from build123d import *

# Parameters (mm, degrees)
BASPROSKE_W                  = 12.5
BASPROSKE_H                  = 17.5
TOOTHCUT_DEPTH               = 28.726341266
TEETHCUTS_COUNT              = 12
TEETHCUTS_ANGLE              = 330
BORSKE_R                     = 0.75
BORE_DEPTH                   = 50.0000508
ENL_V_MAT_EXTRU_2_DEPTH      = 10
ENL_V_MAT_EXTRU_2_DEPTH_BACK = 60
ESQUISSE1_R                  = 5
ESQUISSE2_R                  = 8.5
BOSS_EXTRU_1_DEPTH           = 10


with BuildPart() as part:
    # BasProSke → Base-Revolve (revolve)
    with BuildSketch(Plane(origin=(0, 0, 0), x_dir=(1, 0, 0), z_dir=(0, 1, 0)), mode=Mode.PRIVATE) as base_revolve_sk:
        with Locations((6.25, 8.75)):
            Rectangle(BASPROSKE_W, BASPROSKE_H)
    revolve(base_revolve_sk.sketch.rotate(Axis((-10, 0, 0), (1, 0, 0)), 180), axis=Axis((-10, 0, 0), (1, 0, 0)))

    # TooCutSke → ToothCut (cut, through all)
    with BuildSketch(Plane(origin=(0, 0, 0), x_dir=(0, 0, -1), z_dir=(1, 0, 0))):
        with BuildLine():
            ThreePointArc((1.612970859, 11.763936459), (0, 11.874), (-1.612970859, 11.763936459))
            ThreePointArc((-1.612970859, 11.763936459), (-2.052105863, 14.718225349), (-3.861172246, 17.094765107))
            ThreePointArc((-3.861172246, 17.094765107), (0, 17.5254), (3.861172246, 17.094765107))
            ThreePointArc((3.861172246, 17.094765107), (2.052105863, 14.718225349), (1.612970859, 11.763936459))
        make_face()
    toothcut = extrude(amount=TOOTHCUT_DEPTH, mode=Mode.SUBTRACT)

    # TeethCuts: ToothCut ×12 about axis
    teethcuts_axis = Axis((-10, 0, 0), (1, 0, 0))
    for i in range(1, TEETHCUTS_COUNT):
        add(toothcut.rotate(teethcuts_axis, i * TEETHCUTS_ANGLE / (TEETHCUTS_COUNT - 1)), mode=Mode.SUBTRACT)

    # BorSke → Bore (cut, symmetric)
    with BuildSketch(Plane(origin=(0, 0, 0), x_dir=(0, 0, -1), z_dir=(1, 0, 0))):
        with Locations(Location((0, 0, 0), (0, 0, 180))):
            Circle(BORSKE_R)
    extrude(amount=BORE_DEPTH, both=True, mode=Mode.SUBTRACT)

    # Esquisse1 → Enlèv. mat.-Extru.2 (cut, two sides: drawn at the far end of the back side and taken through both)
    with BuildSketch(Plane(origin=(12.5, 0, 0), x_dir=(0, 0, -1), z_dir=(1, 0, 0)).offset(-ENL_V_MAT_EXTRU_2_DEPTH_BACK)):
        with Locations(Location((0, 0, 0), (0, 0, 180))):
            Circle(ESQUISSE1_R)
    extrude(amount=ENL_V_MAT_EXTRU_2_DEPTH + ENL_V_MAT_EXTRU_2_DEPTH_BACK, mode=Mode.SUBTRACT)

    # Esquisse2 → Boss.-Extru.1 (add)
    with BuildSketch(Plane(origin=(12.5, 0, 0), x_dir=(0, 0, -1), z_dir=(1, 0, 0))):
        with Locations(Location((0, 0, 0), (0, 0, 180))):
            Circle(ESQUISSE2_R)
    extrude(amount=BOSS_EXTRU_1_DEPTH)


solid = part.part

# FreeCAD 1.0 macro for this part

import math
import FreeCAD as App
import Part
import Sketcher

doc = App.newDocument("Part")
body = doc.addObject("PartDesign::Body", "Body")

# Sketch on XZ plane
sketch1 = body.newObject("Sketcher::SketchObject", "Sketch")
sketch1.AttachmentSupport = (doc.getObject("XZ_Plane"), [""])
sketch1.MapMode = "FlatFace"
sketch1.addGeometry(Part.LineSegment(App.Vector(0, -18, 0), App.Vector(0, 0, 0)), False)
sketch1.addGeometry(Part.LineSegment(App.Vector(0, 0, 0), App.Vector(12, 0, 0)), False)
sketch1.addGeometry(Part.LineSegment(App.Vector(12, 0, 0), App.Vector(12, -18, 0)), False)
sketch1.addGeometry(Part.LineSegment(App.Vector(12, -18, 0), App.Vector(0, -18, 0)), False)
sketch1.addConstraint(Sketcher.Constraint("Coincident", 0, 2, 1, 1))
sketch1.addConstraint(Sketcher.Constraint("Coincident", 1, 2, 2, 1))
sketch1.addConstraint(Sketcher.Constraint("Coincident", 2, 2, 3, 1))
sketch1.addConstraint(Sketcher.Constraint("Coincident", 3, 2, 0, 1))
sketch1.addConstraint(Sketcher.Constraint("Vertical", 0))
sketch1.addConstraint(Sketcher.Constraint("Horizontal", 1))
sketch1.addConstraint(Sketcher.Constraint("Vertical", 2))
sketch1.addConstraint(Sketcher.Constraint("Horizontal", 3))
sketch1.addConstraint(Sketcher.Constraint("Coincident", 0, 2, -1, 1))
sketch1.addConstraint(Sketcher.Constraint("DistanceX", 1, 1, 1, 2, 12.5))
sketch1.addConstraint(Sketcher.Constraint("DistanceY", 0, 1, 0, 2, 17.5))
revolution = body.newObject("PartDesign::Revolution", "Revolution")
revolution.Profile = sketch1
revolution.ReferenceAxis = (sketch1, ["H_Axis"])
revolution.Angle = 360

# Sketch on YZ plane
sketch2 = body.newObject("Sketcher::SketchObject", "Sketch001")
sketch2.AttachmentSupport = (doc.getObject("YZ_Plane"), [""])
sketch2.MapMode = "FlatFace"
sketch2.addGeometry(Part.ArcOfCircle(Part.Circle(App.Vector(0, 0, 0), App.Vector(0, 0, 1), 11.9), math.radians(-7.81), math.radians(7.81)), False)
sketch2.addGeometry(Part.ArcOfCircle(Part.Circle(App.Vector(12.4, -7.6, 0), App.Vector(0, 0, 1), 6), math.radians(38), math.radians(96)), False)
sketch2.addGeometry(Part.ArcOfCircle(Part.Circle(App.Vector(0, 0, 0), App.Vector(0, 0, 1), 17.5), math.radians(-13), math.radians(13)), False)
sketch2.addGeometry(Part.ArcOfCircle(Part.Circle(App.Vector(12.4, 7.6, 0), App.Vector(0, 0, 1), 6), math.radians(-96), math.radians(-38)), False)
sketch2.addConstraint(Sketcher.Constraint("Coincident", 0, 1, 1, 2))
sketch2.addConstraint(Sketcher.Constraint("Coincident", 1, 1, 2, 1))
sketch2.addConstraint(Sketcher.Constraint("Coincident", 2, 2, 3, 2))
sketch2.addConstraint(Sketcher.Constraint("Coincident", 3, 1, 0, 2))
sketch2.addConstraint(Sketcher.Constraint("Coincident", 0, 3, -1, 1))
sketch2.addConstraint(Sketcher.Constraint("Coincident", 2, 3, -1, 1))
sketch2.addConstraint(Sketcher.Constraint("Equal", 1, 3))
sketch2.addConstraint(Sketcher.Constraint("Symmetric", 1, 3, 3, 3, -1))
sketch2.addConstraint(Sketcher.Constraint("Radius", 1, 6.0))
sketch2.addConstraint(Sketcher.Constraint("Radius", 0, 11.874))
sketch2.addConstraint(Sketcher.Constraint("Radius", 2, 17.5254))
sketch2.addConstraint(Sketcher.Constraint("DistanceY", 1, 1, 0, 1, 2.248201))
sketch2.addConstraint(Sketcher.Constraint("DistanceY", 0, 1, -1, 1, 1.612971))
pocket1 = body.newObject("PartDesign::Pocket", "Pocket")
pocket1.Profile = sketch2
pocket1.Type = "ThroughAll"
pocket1.Reversed = True
doc.recompute()

polarpattern = body.newObject("PartDesign::PolarPattern", "PolarPattern")
polarpattern.Originals = [pocket1]
polarpattern.Axis = (doc.getObject("X_Axis"), [""])
polarpattern.Angle = 360
polarpattern.Occurrences = 12
body.Tip = polarpattern

# Sketch on YZ plane
sketch3 = body.newObject("Sketcher::SketchObject", "Sketch002")
sketch3.AttachmentSupport = (doc.getObject("YZ_Plane"), [""])
sketch3.MapMode = "FlatFace"
sketch3.addGeometry(Part.Circle(App.Vector(0, 0, 0), App.Vector(0, 0, 1), 0.8), False)
sketch3.addConstraint(Sketcher.Constraint("Coincident", 0, 3, -1, 1))
sketch3.addConstraint(Sketcher.Constraint("Diameter", 0, 1.5))
pocket2 = body.newObject("PartDesign::Pocket", "Pocket001")
pocket2.Profile = sketch3
pocket2.Length = 100.000102
pocket2.Midplane = True

# Sketch on YZ plane
sketch4 = body.newObject("Sketcher::SketchObject", "Sketch003")
sketch4.AttachmentSupport = (doc.getObject("YZ_Plane"), [""])
sketch4.MapMode = "FlatFace"
sketch4.AttachmentOffset = App.Placement(App.Vector(0, 0, 12.5), App.Rotation())
sketch4.addGeometry(Part.Circle(App.Vector(0, 0, 0), App.Vector(0, 0, 1), 5), False)
sketch4.addConstraint(Sketcher.Constraint("Coincident", 0, 3, -1, 1))
sketch4.addConstraint(Sketcher.Constraint("Diameter", 0, 10.0))
pocket3 = body.newObject("PartDesign::Pocket", "Pocket002")
pocket3.Profile = sketch4
pocket3.Type = "ThroughAll"
pocket3.Midplane = True

# Sketch on YZ plane
sketch5 = body.newObject("Sketcher::SketchObject", "Sketch004")
sketch5.AttachmentSupport = (doc.getObject("YZ_Plane"), [""])
sketch5.MapMode = "FlatFace"
sketch5.AttachmentOffset = App.Placement(App.Vector(0, 0, 12.5), App.Rotation())
sketch5.addGeometry(Part.Circle(App.Vector(0, 0, 0), App.Vector(0, 0, 1), 8), False)
sketch5.addConstraint(Sketcher.Constraint("Coincident", 0, 3, -1, 1))
sketch5.addConstraint(Sketcher.Constraint("Diameter", 0, 17.0))
pad1 = body.newObject("PartDesign::Pad", "Pad")
pad1.Profile = sketch5
pad1.Length = 10

doc.recompute()
